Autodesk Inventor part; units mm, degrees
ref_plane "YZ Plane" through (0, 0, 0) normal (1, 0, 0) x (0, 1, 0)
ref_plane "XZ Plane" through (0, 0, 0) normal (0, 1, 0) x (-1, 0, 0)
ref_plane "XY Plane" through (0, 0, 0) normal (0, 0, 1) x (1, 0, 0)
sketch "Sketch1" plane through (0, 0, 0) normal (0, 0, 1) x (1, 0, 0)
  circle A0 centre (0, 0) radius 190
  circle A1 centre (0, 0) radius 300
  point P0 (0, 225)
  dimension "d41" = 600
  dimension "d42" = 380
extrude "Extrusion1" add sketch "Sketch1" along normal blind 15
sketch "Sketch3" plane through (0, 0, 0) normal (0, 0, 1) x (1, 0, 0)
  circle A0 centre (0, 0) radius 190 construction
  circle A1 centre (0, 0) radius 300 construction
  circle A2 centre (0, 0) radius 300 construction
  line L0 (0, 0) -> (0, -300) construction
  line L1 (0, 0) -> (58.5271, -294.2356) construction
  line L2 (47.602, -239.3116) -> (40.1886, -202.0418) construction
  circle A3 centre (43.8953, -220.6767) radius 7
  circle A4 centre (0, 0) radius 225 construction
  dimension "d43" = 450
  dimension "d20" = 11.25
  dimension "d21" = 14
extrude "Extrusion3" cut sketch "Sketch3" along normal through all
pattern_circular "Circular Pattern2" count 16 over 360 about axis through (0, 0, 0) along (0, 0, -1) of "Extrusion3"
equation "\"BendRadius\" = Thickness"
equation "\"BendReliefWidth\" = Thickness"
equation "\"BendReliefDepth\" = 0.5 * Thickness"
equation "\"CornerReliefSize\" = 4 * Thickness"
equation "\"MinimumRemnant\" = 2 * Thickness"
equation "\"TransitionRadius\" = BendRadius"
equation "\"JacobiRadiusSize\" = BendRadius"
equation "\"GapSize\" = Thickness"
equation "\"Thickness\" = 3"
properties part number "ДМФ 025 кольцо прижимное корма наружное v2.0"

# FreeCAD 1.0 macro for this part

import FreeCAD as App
import Part
import Sketcher

doc = App.newDocument("Part")
body = doc.addObject("PartDesign::Body", "Body")

# Sketch on XY plane
sketch1 = doc.addObject("Sketcher::SketchObject", "Sketch")
body.addObject(sketch1)
sketch1.AttachmentSupport = (doc.XY_Plane, [""])
sketch1.MapMode = "FlatFace"
sketch1.addGeometry([
    Part.Circle(App.Vector(0, 0, 0), App.Vector(0, 0, 1), 300),
    Part.Circle(App.Vector(0, 0, 0), App.Vector(0, 0, 1), 190),
], False)
sketch1.addConstraint([
    Sketcher.Constraint("Coincident", 0, 3, -1, 1),
    Sketcher.Constraint("Coincident", 1, 3, -1, 1),
    Sketcher.Constraint("Diameter", 0, 600.0),
    Sketcher.Constraint("Diameter", 1, 380.0),
])
pad1 = doc.addObject("PartDesign::Pad", "Pad")
body.addObject(pad1)
pad1.Profile = sketch1
pad1.Length = 15

# Sketch on XY plane
sketch2 = doc.addObject("Sketcher::SketchObject", "Sketch001")
body.addObject(sketch2)
sketch2.AttachmentSupport = (doc.XY_Plane, [""])
sketch2.MapMode = "FlatFace"
sketch2.addGeometry(Part.Circle(App.Vector(44, -221, 0), App.Vector(0, 0, 1), 7), False)
sketch2.addConstraint([
    Sketcher.Constraint("Diameter", 0, 14.0),
    Sketcher.Constraint("DistanceX", -1, 1, 0, 3, 43.8953),
    Sketcher.Constraint("DistanceY", 0, 3, -1, 1, 220.6767),
])
pocket1 = doc.addObject("PartDesign::Pocket", "Pocket")
body.addObject(pocket1)
pocket1.Profile = sketch2
pocket1.Type = "ThroughAll"
pocket1.Reversed = True
doc.recompute()

polarpattern = doc.addObject("PartDesign::PolarPattern", "PolarPattern")
body.addObject(polarpattern)
polarpattern.Originals = [pocket1]
polarpattern.Axis = (doc.Z_Axis, [""])
polarpattern.Angle = 360
polarpattern.Occurrences = 16
body.Tip = polarpattern

doc.recompute()
